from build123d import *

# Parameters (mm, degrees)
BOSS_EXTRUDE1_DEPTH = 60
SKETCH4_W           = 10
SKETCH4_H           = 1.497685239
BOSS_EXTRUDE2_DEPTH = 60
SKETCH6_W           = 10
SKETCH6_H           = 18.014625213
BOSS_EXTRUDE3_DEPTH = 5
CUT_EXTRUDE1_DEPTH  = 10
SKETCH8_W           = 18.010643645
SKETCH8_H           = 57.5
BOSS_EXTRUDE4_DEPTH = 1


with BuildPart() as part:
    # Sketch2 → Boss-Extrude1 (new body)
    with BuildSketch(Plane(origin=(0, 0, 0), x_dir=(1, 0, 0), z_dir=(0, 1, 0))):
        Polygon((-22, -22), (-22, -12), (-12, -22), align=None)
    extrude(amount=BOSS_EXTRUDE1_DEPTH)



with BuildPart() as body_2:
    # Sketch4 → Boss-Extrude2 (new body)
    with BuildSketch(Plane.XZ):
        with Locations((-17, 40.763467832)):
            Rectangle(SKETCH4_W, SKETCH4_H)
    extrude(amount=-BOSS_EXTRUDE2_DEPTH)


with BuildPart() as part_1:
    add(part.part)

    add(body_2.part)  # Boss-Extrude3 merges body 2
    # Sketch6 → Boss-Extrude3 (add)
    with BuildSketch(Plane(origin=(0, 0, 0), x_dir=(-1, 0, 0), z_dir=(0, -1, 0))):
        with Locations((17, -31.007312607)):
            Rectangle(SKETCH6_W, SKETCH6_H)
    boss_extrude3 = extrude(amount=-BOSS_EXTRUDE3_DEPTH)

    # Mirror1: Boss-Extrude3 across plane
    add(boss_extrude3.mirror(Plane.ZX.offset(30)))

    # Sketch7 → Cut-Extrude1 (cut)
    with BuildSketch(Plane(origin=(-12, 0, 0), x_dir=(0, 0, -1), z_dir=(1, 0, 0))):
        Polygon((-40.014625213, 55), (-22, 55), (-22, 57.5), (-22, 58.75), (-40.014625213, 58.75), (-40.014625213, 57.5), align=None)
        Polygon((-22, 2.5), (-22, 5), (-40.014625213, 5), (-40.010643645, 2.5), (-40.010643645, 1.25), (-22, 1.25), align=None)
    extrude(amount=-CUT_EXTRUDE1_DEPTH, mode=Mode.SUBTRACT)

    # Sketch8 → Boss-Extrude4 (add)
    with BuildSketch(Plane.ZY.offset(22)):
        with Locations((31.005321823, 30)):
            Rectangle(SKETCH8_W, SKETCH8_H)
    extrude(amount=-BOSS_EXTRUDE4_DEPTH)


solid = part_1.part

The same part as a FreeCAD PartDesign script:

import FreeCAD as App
import Part
import Sketcher
Q = App.Units.Quantity


def add_polygon(sketch, points):
    """Adds a closed chain of lines whose ends are joined by coincident constraints."""
    first, n = sketch.GeometryCount, len(points)
    for a, b in zip(points, points[1:] + points[:1]):
        sketch.addGeometry(Part.LineSegment(App.Vector(*a, 0), App.Vector(*b, 0)), False)
    for i in range(n):
        sketch.addConstraint(Sketcher.Constraint("Coincident", first + i, 2, first + (i + 1) % n, 1))

doc = App.newDocument("Part")
params = doc.addObject("Spreadsheet::Sheet", "Params")
for row, (alias, value) in enumerate([
    ("sketch1_width", "10 mm"),
    ("pad1_length", "60 mm"),
    ("sketch2_width", "10 mm"),
    ("pad2_length", "60 mm"),
    ("sketch3_width", "10 mm"),
    ("pad3_length", "5 mm"),
    ("sketch4_width", "3.75 mm"),
    ("sketch4_width2", "1.25 mm"),
    ("pocket1_length", "10 mm"),
    ("sketch5_width", "57.5 mm"),
    ("pad4_length", "1 mm"),
], start=1):
    params.set(f"A{row}", alias)
    params.set(f"B{row}", "=" + value)
    params.setAlias(f"B{row}", alias)

body = doc.addObject("PartDesign::Body", "Body")

sketch1 = body.newObject("Sketcher::SketchObject", "Sketch")
sketch1.AttachmentSupport = (doc.getObject("XZ_Plane"), [""])
sketch1.MapMode = "FlatFace"
add_polygon(sketch1, [(-22, 12), (-22, 22), (-12, 22)])
sketch1.addConstraint([
    Sketcher.Constraint("Vertical", 0),
    Sketcher.Constraint("Horizontal", 1),
    Sketcher.Constraint("Equal", 1, 0),
    Sketcher.Constraint("DistanceX", 1, 1, 1, 2, Q("10 mm")),
    Sketcher.Constraint("DistanceX", 0, 2, -1, 1, Q("22 mm")),
    Sketcher.Constraint("DistanceY", -1, 1, 0, 2, Q("22 mm")),
])
sketch1.setExpression("Constraints[6]", "Params.sketch1_width")
pad1 = body.newObject("PartDesign::Pad", "Pad")
pad1.Profile = sketch1
pad1.setExpression("Length", "Params.pad1_length")
pad1.Reversed = True
body2 = doc.addObject("PartDesign::Body", "Body001")

sketch2 = body2.newObject("Sketcher::SketchObject", "Sketch001")
sketch2.AttachmentSupport = (doc.getObject("XZ_Plane001"), [""])
sketch2.MapMode = "FlatFace"
add_polygon(sketch2, [(-22, 41.5), (-22, 40), (-12, 40), (-12, 41.5)])
sketch2.addConstraint([
    Sketcher.Constraint("Vertical", 0),
    Sketcher.Constraint("Horizontal", 1),
    Sketcher.Constraint("Vertical", 2),
    Sketcher.Constraint("Horizontal", 3),
    Sketcher.Constraint("DistanceX", 1, 1, 1, 2, Q("10 mm")),
    Sketcher.Constraint("DistanceX", 0, 2, -1, 1, Q("22 mm")),
    Sketcher.Constraint("DistanceY", 0, 2, 0, 1, Q("1.497685 mm")),
    Sketcher.Constraint("DistanceY", -1, 1, 2, 2, Q("41.51231 mm")),
])
sketch2.setExpression("Constraints[8]", "Params.sketch2_width")
pad2 = body2.newObject("PartDesign::Pad", "Pad001")
pad2.Profile = sketch2
pad2.setExpression("Length", "Params.pad2_length")
pad2.Reversed = True
body.AllowCompound = True
doc.recompute()

boolean = body.newObject("PartDesign::Boolean", "Boolean")
boolean.Type = "Fuse"
boolean.addObjects([body2])

sketch3 = body.newObject("Sketcher::SketchObject", "Sketch002")
sketch3.AttachmentSupport = (doc.getObject("XZ_Plane"), [""])
sketch3.MapMode = "FlatFace"
add_polygon(sketch3, [(-12, 22), (-12, 40), (-22, 40), (-22, 22)])
sketch3.addConstraint([
    Sketcher.Constraint("Vertical", 0),
    Sketcher.Constraint("Horizontal", 1),
    Sketcher.Constraint("Vertical", 2),
    Sketcher.Constraint("Horizontal", 3),
    Sketcher.Constraint("DistanceX", 1, 2, 1, 1, Q("10 mm")),
    Sketcher.Constraint("DistanceX", 0, 2, -1, 1, Q("12 mm")),
    Sketcher.Constraint("DistanceY", -1, 1, 2, 2, Q("22 mm")),
    Sketcher.Constraint("DistanceY", 0, 1, 0, 2, Q("18.014625 mm")),
])
sketch3.setExpression("Constraints[8]", "Params.sketch3_width")
pad3 = body.newObject("PartDesign::Pad", "Pad002")
pad3.Profile = sketch3
pad3.setExpression("Length", "Params.pad3_length")
pad3.Reversed = True
doc.recompute()

datumplane = body.newObject("PartDesign::Plane", "DatumPlane")
datumplane.AttachmentSupport = (doc.getObject("XZ_Plane"), [""])
datumplane.MapMode = "FlatFace"
datumplane.AttachmentOffset = App.Placement(App.Vector(0, 0, -30), App.Rotation())
mirrored = body.newObject("PartDesign::Mirrored", "Mirrored")
mirrored.Originals = [pad3]
mirrored.MirrorPlane = (datumplane, [""])
body.Tip = mirrored

sketch4 = body.newObject("Sketcher::SketchObject", "Sketch003")
sketch4.AttachmentSupport = (doc.getObject("YZ_Plane"), [""])
sketch4.MapMode = "FlatFace"
sketch4.AttachmentOffset = App.Placement(App.Vector(0, 0, -12), App.Rotation())
add_polygon(sketch4, [(55, 40), (55, 22), (58.8, 22), (58.8, 40)])
add_polygon(sketch4, [(5, 22), (5, 40), (2.5, 40), (1.2, 40), (1.2, 22)])
sketch4.addConstraint([
    Sketcher.Constraint("Vertical", 0),
    Sketcher.Constraint("Horizontal", 1),
    Sketcher.Constraint("Vertical", 2),
    Sketcher.Constraint("Horizontal", 3),
    Sketcher.Constraint("Vertical", 4),
    Sketcher.Constraint("Horizontal", 6),
    Sketcher.Constraint("Vertical", 7),
    Sketcher.Constraint("Horizontal", 8),
    Sketcher.Constraint("Horizontal", 3, 2, 4, 2),
    Sketcher.Constraint("Horizontal", 1, 2, 7, 2),
    Sketcher.Constraint("Equal", 3, 8),
    Sketcher.Constraint("DistanceX", -1, 1, 0, 2, Q("55 mm")),
    Sketcher.Constraint("DistanceY", -1, 1, 0, 2, Q("22 mm")),
    Sketcher.Constraint("DistanceX", -1, 1, 4, 2, Q("5 mm")),
    Sketcher.Constraint("DistanceX", 1, 1, 1, 2, Q("3.75 mm")),
    Sketcher.Constraint("DistanceX", 6, 2, 6, 1, Q("1.25 mm")),
    Sketcher.Constraint("DistanceY", 0, 2, 0, 1, Q("18.014625 mm")),
    Sketcher.Constraint("DistanceY", 7, 2, 7, 1, Q("18.010644 mm")),
])
sketch4.setExpression("Constraints[23]", "Params.sketch4_width")
sketch4.setExpression("Constraints[24]", "Params.sketch4_width2")
pocket1 = body.newObject("PartDesign::Pocket", "Pocket")
pocket1.Profile = sketch4
pocket1.setExpression("Length", "Params.pocket1_length")

sketch5 = body.newObject("Sketcher::SketchObject", "Sketch004")
sketch5.AttachmentSupport = (doc.getObject("YZ_Plane"), [""])
sketch5.MapMode = "FlatFace"
sketch5.AttachmentOffset = App.Placement(App.Vector(0, 0, -22), App.Rotation())
add_polygon(sketch5, [(59, 22), (1, 22), (1, 40), (59, 40)])
sketch5.addConstraint([
    Sketcher.Constraint("Horizontal", 0),
    Sketcher.Constraint("Vertical", 1),
    Sketcher.Constraint("Horizontal", 2),
    Sketcher.Constraint("Vertical", 3),
    Sketcher.Constraint("DistanceX", 0, 2, 0, 1, Q("57.5 mm")),
    Sketcher.Constraint("DistanceY", -1, 1, 0, 2, Q("22 mm")),
    Sketcher.Constraint("DistanceX", -1, 1, 0, 2, Q("1.25 mm")),
    Sketcher.Constraint("DistanceY", 1, 1, 1, 2, Q("18.010644 mm")),
])
sketch5.setExpression("Constraints[8]", "Params.sketch5_width")
pad4 = body.newObject("PartDesign::Pad", "Pad003")
pad4.Profile = sketch5
pad4.setExpression("Length", "Params.pad4_length")

doc.recompute()
